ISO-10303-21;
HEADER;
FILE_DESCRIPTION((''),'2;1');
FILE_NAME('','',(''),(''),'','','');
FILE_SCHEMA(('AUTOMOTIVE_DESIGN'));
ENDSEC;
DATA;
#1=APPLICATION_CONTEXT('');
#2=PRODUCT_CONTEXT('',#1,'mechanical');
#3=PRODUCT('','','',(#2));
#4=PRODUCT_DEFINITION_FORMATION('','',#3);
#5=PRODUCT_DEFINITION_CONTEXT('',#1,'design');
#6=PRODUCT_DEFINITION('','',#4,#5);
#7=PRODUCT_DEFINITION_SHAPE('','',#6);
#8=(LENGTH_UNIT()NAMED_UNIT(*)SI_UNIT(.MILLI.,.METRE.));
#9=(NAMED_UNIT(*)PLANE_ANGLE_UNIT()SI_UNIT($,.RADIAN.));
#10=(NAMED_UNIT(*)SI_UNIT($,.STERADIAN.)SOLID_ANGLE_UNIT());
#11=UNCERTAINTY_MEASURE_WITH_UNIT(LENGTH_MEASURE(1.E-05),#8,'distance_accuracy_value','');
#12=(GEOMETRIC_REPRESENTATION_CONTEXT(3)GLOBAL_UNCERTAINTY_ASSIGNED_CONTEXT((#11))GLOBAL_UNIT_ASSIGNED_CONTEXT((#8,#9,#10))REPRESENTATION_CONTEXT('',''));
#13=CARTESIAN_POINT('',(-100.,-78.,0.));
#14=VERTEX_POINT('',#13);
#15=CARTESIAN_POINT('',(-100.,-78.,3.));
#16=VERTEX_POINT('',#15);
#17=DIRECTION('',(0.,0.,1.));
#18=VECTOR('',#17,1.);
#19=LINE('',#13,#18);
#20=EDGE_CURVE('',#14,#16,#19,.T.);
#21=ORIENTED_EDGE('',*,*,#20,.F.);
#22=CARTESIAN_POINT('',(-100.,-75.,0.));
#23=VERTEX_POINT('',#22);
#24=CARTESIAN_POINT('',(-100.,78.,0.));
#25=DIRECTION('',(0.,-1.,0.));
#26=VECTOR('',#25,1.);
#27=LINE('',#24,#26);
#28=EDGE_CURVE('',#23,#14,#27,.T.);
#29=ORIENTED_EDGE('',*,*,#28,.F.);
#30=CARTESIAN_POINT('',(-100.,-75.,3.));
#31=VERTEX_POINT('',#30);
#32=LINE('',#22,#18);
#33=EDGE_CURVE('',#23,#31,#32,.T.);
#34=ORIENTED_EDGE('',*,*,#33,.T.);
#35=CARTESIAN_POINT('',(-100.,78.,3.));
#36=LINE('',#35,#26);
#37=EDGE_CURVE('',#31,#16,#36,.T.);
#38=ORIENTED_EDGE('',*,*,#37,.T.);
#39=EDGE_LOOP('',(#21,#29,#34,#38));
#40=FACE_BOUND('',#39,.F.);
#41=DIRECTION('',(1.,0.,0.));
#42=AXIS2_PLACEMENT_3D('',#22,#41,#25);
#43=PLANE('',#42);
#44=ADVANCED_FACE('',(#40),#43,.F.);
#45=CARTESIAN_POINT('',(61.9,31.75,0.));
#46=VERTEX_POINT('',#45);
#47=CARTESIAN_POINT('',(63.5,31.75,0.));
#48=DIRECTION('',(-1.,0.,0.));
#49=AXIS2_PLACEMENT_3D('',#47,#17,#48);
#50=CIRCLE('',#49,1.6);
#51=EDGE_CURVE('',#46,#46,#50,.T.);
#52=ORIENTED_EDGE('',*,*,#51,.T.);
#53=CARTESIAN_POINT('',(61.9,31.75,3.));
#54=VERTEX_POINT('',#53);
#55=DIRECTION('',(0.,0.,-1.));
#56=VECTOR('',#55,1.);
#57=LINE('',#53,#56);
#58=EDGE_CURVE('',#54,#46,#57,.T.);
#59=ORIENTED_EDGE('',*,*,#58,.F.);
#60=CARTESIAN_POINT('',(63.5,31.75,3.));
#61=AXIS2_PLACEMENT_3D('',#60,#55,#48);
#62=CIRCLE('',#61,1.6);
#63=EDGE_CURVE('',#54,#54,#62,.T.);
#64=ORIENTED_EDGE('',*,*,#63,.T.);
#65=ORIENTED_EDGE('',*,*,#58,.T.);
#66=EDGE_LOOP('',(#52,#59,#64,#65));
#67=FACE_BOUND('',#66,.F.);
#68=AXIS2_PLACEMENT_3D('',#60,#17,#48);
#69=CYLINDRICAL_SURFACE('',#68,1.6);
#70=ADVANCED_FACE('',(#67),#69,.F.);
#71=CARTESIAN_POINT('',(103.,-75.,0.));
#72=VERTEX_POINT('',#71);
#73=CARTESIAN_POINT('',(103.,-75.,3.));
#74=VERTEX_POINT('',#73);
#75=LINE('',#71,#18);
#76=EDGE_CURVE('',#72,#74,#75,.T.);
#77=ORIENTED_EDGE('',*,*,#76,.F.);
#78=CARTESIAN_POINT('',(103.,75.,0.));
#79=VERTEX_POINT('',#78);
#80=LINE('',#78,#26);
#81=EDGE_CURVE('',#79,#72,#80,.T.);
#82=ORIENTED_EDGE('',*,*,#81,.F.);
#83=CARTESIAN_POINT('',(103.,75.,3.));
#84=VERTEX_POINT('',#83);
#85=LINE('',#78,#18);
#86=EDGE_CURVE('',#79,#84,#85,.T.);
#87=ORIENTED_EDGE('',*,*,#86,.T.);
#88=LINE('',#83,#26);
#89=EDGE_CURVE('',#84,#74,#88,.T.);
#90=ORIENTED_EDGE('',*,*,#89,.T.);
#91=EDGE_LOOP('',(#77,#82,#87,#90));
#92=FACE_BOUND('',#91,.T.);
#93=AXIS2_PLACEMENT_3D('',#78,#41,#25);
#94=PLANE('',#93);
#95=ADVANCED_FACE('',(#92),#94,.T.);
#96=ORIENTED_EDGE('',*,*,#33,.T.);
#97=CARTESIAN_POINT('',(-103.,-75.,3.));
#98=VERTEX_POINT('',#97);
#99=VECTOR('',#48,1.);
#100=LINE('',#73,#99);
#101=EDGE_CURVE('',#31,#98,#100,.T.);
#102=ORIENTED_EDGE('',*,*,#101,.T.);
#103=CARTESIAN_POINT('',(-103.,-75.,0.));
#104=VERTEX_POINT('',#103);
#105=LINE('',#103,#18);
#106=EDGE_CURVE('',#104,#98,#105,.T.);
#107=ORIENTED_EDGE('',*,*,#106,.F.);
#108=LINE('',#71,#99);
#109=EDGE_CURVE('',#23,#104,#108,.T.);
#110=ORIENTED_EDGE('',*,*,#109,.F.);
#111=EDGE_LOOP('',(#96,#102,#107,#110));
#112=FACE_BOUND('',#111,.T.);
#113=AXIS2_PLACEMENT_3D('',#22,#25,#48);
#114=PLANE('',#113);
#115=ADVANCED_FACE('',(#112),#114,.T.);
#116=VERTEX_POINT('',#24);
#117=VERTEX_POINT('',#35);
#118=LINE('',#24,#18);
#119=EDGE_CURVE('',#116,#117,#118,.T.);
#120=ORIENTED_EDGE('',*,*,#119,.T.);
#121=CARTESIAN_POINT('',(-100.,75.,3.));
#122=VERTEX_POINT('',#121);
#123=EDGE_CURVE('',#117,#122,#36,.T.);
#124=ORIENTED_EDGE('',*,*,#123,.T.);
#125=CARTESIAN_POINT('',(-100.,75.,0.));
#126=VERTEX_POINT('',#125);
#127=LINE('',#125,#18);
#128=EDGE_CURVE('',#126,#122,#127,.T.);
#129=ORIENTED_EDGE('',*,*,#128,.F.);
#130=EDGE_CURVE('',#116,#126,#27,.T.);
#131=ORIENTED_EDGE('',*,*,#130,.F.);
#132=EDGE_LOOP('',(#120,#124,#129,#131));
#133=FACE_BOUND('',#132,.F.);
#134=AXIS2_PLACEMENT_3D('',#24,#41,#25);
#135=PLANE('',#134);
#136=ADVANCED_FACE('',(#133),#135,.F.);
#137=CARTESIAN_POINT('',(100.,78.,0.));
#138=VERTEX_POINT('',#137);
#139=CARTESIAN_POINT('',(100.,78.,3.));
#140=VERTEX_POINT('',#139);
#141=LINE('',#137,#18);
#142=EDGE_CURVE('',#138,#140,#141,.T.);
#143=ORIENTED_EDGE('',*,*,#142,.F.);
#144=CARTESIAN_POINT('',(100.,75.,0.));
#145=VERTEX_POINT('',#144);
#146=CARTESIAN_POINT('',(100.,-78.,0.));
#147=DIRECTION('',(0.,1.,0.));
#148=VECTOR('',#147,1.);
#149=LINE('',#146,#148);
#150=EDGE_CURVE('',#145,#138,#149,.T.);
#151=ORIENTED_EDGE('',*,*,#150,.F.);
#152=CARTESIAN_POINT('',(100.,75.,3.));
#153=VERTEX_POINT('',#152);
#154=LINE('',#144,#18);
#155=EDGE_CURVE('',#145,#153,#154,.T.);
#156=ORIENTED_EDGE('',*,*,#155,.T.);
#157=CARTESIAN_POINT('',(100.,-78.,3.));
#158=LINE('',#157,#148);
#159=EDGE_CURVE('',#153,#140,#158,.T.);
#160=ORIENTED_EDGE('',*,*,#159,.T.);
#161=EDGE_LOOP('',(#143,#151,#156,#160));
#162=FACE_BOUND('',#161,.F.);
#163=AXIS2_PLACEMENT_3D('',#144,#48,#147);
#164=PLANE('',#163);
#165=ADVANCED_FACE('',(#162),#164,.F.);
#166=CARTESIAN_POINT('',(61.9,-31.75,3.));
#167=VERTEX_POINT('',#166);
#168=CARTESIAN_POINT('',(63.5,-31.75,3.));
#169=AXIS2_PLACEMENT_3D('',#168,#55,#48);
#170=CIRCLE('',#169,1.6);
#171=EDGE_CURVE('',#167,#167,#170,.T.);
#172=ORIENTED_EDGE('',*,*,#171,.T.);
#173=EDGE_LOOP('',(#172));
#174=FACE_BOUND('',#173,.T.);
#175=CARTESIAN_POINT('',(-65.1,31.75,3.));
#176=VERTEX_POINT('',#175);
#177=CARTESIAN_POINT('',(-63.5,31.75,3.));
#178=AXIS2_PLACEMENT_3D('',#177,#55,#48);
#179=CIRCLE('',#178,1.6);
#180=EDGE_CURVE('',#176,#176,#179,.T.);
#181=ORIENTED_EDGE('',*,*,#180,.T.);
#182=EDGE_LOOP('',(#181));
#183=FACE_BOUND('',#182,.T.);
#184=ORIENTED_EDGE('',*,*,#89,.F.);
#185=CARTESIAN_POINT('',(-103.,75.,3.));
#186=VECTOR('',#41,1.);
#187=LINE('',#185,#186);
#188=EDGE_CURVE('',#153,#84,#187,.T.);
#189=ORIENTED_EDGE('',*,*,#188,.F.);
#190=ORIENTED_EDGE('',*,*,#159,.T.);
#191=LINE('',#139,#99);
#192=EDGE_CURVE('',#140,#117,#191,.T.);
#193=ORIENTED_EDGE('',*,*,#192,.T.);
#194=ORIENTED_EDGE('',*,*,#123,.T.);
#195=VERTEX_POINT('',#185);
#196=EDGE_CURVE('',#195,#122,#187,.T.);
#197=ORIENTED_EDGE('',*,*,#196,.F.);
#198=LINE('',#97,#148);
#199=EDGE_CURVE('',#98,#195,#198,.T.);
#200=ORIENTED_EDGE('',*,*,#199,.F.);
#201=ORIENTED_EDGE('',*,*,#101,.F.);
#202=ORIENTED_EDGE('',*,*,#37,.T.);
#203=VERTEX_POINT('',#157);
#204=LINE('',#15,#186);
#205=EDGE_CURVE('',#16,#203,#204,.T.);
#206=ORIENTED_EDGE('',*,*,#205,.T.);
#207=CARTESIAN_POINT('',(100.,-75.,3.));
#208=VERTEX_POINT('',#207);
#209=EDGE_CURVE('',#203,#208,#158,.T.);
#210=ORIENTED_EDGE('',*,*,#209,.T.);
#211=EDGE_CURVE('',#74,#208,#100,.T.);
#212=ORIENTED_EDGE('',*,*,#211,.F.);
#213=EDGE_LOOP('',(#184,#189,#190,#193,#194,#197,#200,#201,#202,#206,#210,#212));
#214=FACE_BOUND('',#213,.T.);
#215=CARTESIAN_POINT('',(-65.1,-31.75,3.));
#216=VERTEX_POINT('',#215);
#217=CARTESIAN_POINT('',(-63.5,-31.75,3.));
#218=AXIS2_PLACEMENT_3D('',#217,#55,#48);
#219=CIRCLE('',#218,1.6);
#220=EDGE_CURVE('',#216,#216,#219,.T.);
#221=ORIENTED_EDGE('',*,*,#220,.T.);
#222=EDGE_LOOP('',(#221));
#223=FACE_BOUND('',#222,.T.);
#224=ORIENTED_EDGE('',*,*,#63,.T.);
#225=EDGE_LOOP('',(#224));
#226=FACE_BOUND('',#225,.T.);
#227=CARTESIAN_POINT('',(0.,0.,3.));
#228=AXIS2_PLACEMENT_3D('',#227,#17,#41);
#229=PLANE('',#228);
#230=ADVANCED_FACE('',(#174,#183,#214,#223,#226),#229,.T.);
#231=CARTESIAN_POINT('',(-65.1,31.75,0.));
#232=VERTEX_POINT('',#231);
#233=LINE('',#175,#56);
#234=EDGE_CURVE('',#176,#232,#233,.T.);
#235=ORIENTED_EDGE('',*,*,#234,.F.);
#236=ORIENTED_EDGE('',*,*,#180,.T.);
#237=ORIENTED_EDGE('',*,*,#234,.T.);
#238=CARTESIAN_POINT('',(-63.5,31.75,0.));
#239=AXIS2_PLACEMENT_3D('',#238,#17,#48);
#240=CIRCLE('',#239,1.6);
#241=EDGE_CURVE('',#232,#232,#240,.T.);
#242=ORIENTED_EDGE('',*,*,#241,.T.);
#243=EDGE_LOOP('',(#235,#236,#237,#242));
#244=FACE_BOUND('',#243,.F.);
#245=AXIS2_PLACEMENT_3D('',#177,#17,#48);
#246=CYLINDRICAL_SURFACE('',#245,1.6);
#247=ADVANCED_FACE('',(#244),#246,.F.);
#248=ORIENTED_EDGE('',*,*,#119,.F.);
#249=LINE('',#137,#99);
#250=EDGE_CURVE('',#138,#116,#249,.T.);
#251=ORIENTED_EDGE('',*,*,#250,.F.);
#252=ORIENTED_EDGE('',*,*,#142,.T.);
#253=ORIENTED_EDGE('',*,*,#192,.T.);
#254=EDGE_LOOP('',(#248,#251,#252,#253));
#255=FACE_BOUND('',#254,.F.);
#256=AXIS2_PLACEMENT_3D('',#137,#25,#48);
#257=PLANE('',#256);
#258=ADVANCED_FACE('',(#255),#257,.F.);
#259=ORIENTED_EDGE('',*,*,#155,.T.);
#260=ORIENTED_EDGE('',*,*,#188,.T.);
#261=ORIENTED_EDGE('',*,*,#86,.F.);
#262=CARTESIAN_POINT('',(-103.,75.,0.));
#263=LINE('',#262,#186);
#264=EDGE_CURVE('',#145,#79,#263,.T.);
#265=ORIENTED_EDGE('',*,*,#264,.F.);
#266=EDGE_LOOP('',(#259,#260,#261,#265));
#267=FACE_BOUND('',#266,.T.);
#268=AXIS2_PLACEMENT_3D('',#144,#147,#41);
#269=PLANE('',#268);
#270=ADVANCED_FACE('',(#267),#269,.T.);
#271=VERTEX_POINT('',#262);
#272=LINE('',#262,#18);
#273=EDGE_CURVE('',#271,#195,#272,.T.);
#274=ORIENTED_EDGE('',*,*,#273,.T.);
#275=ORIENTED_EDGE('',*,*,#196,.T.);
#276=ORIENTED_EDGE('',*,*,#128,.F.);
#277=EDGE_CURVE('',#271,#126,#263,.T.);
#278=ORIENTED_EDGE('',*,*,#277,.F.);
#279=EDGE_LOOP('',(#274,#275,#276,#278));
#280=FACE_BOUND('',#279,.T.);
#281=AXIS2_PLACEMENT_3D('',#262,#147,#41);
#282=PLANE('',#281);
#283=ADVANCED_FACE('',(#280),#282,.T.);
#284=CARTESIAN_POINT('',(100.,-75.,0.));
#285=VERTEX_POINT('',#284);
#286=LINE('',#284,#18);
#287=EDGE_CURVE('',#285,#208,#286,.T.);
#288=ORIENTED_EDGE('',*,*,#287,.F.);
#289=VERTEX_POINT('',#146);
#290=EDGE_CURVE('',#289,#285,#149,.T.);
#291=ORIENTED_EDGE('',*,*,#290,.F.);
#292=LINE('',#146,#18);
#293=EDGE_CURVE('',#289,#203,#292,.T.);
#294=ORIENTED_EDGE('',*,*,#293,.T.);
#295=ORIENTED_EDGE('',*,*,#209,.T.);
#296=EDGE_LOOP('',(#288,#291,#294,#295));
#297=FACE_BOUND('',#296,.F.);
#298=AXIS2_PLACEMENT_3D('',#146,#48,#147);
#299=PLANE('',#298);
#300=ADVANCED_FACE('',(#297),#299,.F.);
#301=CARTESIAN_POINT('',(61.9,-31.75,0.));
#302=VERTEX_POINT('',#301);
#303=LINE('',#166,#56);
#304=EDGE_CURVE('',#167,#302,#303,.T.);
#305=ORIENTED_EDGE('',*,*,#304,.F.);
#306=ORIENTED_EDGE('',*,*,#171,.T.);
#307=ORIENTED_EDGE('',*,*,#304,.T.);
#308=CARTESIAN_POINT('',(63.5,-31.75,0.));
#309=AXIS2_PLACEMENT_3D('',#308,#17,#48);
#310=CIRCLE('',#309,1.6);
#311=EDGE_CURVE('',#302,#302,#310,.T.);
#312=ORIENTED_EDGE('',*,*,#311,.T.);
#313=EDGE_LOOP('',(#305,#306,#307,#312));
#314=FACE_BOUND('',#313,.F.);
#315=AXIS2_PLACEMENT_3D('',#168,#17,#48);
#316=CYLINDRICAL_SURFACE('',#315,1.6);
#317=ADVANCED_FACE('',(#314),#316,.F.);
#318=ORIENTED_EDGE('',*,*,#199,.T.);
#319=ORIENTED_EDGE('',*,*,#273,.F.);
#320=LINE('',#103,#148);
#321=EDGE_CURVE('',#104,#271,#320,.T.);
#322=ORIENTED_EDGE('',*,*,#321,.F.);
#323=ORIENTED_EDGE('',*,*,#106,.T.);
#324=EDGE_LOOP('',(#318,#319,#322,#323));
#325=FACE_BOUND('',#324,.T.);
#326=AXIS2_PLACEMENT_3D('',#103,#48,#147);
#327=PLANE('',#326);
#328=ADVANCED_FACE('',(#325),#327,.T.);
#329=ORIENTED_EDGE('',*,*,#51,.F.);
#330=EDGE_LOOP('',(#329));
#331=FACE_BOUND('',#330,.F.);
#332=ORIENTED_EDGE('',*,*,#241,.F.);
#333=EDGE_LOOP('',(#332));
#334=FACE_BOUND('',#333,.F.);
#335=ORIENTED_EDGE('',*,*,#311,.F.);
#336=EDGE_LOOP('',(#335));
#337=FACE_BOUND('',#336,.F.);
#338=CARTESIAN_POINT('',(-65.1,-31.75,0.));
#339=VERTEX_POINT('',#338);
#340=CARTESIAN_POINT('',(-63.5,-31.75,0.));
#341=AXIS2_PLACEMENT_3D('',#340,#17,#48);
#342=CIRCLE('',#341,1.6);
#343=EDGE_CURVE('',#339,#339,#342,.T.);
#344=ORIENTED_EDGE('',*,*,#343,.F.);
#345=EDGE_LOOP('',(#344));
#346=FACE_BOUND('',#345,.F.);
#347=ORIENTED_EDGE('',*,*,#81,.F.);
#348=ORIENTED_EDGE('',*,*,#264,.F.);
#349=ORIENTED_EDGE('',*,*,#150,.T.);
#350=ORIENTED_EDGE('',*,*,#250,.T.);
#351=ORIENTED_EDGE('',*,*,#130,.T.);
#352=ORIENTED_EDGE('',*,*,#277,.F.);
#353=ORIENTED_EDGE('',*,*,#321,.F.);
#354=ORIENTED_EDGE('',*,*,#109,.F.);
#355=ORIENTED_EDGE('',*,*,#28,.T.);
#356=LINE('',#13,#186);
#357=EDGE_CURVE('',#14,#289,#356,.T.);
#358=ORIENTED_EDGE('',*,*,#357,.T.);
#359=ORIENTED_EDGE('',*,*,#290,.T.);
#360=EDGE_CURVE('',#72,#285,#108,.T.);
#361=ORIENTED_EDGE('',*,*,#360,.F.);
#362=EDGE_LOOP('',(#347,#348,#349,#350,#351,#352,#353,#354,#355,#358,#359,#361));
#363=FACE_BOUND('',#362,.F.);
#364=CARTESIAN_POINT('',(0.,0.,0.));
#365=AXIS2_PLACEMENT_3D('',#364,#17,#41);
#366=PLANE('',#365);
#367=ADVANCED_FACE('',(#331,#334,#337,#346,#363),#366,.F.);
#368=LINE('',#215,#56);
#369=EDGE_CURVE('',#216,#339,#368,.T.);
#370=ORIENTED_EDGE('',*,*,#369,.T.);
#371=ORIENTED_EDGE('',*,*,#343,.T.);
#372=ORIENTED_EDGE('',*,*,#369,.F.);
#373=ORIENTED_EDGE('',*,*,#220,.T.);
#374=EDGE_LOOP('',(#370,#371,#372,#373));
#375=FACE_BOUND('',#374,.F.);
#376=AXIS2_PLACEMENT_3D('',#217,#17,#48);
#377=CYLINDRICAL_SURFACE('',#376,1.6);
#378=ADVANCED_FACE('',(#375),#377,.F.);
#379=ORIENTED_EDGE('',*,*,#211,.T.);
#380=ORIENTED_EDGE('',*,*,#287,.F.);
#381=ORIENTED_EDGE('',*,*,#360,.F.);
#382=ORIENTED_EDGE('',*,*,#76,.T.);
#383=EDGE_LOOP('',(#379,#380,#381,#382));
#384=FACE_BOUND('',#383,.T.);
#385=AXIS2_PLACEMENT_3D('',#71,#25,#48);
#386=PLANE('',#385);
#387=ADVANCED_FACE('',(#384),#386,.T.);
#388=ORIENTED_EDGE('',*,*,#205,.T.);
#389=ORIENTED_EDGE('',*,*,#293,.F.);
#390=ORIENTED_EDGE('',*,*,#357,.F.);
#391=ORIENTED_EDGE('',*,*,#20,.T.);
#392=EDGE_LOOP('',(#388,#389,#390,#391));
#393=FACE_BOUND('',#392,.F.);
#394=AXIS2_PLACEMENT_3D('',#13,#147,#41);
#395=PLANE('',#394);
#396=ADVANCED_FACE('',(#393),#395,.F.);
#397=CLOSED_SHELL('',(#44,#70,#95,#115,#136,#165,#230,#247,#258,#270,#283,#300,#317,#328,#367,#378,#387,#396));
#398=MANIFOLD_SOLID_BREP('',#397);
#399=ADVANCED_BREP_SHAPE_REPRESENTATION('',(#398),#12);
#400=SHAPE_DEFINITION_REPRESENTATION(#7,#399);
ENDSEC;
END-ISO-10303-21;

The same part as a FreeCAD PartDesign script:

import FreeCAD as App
import Part
import Sketcher

V = App.Vector

doc = App.newDocument("Part")
body = doc.addObject("PartDesign::Body", "Body")

sketch1 = doc.addObject("Sketcher::SketchObject", "Sketch")
body.addObject(sketch1)
sketch1.AttachmentSupport = (doc.XY_Plane, [""])
sketch1.MapMode = "FlatFace"
sketch1.addGeometry([
    Part.LineSegment(V(100, 75, 0), V(100, 78, 0)),
    Part.LineSegment(V(100, 78, 0), V(-100, 78, 0)),
    Part.LineSegment(V(-100, 78, 0), V(-100, 75, 0)),
    Part.LineSegment(V(-100, 75, 0), V(-103, 75, 0)),
    Part.LineSegment(V(-103, 75, 0), V(-103, -75, 0)),
    Part.LineSegment(V(-103, -75, 0), V(-100, -75, 0)),
    Part.LineSegment(V(-100, -75, 0), V(-100, -78, 0)),
    Part.LineSegment(V(-100, -78, 0), V(100, -78, 0)),
    Part.LineSegment(V(100, -78, 0), V(100, -75, 0)),
    Part.LineSegment(V(100, -75, 0), V(103, -75, 0)),
    Part.LineSegment(V(103, -75, 0), V(103, 75, 0)),
    Part.LineSegment(V(103, 75, 0), V(100, 75, 0)),
], False)
sketch1.addConstraint([
    Sketcher.Constraint("Coincident", 0, 2, 1, 1),
    Sketcher.Constraint("Coincident", 1, 2, 2, 1),
    Sketcher.Constraint("Coincident", 2, 2, 3, 1),
    Sketcher.Constraint("Coincident", 3, 2, 4, 1),
    Sketcher.Constraint("Coincident", 4, 2, 5, 1),
    Sketcher.Constraint("Coincident", 5, 2, 6, 1),
    Sketcher.Constraint("Coincident", 6, 2, 7, 1),
    Sketcher.Constraint("Coincident", 7, 2, 8, 1),
    Sketcher.Constraint("Coincident", 8, 2, 9, 1),
    Sketcher.Constraint("Coincident", 9, 2, 10, 1),
    Sketcher.Constraint("Coincident", 10, 2, 11, 1),
    Sketcher.Constraint("Coincident", 11, 2, 0, 1),
    Sketcher.Constraint("Vertical", 0),
    Sketcher.Constraint("Horizontal", 1),
    Sketcher.Constraint("Vertical", 2),
    Sketcher.Constraint("Horizontal", 3),
    Sketcher.Constraint("Vertical", 4),
    Sketcher.Constraint("Horizontal", 5),
    Sketcher.Constraint("Vertical", 6),
    Sketcher.Constraint("Horizontal", 7),
    Sketcher.Constraint("Vertical", 8),
    Sketcher.Constraint("Horizontal", 9),
    Sketcher.Constraint("Vertical", 10),
    Sketcher.Constraint("Horizontal", 11),
    Sketcher.Constraint("Symmetric", 0, 2, 6, 2, -1, 1),
    Sketcher.Constraint("Symmetric", 2, 2, 8, 2, -1, 1),
    Sketcher.Constraint("Symmetric", 4, 2, 10, 2, -1, 1),
    Sketcher.Constraint("Symmetric", 5, 2, 8, 2, -2),
    Sketcher.Constraint("Equal", 11, 0),
    Sketcher.Constraint("DistanceX", 1, 2, 1, 1, 200.0),
    Sketcher.Constraint("DistanceY", 4, 2, 4, 1, 150.0),
    Sketcher.Constraint("DistanceY", 6, 2, 1, 2, 156.0),
])
pad1 = doc.addObject("PartDesign::Pad", "Pad")
body.addObject(pad1)
pad1.Profile = sketch1
pad1.Length = 3

sketch2 = doc.addObject("Sketcher::SketchObject", "Sketch001")
body.addObject(sketch2)
sketch2.AttachmentSupport = (doc.XY_Plane, [""])
sketch2.MapMode = "FlatFace"
sketch2.AttachmentOffset = App.Placement(V(0, 0, 3), App.Rotation())
sketch2.addGeometry([
    Part.Circle(V(63.5, -31.8, 0), V(0, 0, 1), 1.6),
    Part.Circle(V(-63.5, -31.8, 0), V(0, 0, 1), 1.6),
    Part.Circle(V(63.5, 31.8, 0), V(0, 0, 1), 1.6),
    Part.Circle(V(-63.5, 31.8, 0), V(0, 0, 1), 1.6),
], False)
sketch2.addConstraint([
    Sketcher.Constraint("Equal", 0, 1),
    Sketcher.Constraint("Equal", 1, 2),
    Sketcher.Constraint("Equal", 2, 3),
    Sketcher.Constraint("Symmetric", 1, 3, 2, 3, -1, 1),
    Sketcher.Constraint("Symmetric", 0, 3, 3, 3, -1, 1),
    Sketcher.Constraint("Symmetric", 0, 3, 1, 3, -2),
    Sketcher.Constraint("Diameter", 0, 3.2),
    Sketcher.Constraint("DistanceX", 1, 3, 0, 3, 127.0),
    Sketcher.Constraint("DistanceY", 0, 3, 2, 3, 63.5),
])
pocket1 = doc.addObject("PartDesign::Pocket", "Pocket")
body.addObject(pocket1)
pocket1.Profile = sketch2
pocket1.Length = 3

doc.recompute()
